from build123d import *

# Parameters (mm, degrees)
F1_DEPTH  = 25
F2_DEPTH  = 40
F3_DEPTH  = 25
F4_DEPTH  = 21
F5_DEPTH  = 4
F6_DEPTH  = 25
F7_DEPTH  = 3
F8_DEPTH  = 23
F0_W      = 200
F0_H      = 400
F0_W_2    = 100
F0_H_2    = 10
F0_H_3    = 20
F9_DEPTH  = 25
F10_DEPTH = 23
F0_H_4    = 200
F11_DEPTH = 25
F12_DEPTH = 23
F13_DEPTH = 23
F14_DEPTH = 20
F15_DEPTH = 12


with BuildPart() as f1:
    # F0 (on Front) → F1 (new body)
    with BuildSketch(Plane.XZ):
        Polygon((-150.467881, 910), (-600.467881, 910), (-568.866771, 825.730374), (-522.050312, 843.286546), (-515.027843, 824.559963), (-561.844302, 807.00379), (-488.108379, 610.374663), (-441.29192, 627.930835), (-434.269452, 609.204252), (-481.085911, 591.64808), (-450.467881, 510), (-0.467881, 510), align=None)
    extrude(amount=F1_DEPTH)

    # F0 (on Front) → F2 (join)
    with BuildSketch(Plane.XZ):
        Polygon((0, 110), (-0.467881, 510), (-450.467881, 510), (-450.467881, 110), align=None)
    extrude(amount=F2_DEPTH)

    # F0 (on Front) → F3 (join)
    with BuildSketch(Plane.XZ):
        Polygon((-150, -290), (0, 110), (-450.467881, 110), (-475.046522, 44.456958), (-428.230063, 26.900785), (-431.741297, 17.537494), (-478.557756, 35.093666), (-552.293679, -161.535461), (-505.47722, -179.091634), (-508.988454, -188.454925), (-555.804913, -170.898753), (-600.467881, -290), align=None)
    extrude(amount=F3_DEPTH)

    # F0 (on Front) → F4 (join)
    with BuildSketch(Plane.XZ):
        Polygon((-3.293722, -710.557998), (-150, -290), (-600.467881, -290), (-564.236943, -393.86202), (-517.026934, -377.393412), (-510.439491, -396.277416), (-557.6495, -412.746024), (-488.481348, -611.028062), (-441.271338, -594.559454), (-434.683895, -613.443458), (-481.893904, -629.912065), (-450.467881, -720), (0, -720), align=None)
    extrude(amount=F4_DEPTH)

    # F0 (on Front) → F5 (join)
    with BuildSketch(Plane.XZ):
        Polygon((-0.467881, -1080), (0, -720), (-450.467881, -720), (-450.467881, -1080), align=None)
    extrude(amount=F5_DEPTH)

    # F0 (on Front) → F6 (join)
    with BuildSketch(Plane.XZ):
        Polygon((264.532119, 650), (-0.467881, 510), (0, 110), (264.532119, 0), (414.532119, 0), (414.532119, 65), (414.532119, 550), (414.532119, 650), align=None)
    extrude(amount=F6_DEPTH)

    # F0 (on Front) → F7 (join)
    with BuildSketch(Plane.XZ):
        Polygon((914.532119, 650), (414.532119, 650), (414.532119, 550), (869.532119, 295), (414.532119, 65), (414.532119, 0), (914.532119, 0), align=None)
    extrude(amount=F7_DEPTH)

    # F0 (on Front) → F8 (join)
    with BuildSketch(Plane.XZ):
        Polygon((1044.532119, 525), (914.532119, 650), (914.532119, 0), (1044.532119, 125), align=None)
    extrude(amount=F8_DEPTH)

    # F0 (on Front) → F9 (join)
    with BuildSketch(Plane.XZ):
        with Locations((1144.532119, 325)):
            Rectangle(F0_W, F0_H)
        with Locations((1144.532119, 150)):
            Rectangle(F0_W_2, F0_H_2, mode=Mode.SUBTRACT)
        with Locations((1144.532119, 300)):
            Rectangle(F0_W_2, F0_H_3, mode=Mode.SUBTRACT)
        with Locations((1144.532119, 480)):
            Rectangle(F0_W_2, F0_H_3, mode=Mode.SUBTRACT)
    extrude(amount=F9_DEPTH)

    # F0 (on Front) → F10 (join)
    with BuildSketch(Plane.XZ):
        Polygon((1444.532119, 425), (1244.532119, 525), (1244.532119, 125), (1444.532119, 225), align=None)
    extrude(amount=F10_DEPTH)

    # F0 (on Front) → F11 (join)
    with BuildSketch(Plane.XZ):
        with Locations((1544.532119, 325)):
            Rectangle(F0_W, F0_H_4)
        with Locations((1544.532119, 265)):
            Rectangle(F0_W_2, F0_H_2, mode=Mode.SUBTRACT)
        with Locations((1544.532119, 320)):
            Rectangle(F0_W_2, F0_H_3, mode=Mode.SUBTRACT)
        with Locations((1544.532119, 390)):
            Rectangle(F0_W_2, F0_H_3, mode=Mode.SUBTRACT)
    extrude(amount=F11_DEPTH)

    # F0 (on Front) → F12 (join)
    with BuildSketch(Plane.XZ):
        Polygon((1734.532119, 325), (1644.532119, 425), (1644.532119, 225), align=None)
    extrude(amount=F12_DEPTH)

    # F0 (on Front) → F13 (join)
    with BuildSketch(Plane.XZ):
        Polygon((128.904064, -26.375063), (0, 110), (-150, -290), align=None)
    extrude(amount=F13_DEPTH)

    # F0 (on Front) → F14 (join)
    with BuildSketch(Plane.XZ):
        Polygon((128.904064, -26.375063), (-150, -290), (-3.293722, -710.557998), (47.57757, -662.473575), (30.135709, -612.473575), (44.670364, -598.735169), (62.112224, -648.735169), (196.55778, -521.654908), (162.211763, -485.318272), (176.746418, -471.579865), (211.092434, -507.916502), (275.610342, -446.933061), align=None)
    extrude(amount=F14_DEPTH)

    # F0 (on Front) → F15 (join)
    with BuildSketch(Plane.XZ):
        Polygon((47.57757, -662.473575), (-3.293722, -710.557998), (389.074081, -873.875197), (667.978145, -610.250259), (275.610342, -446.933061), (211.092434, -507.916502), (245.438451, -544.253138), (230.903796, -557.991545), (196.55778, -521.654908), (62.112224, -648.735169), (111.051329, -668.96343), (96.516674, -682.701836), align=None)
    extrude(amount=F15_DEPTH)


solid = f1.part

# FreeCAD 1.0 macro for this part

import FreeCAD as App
import Part
import Sketcher
from FreeCAD import Vector
Q = App.Units.Quantity

doc = App.newDocument("Part")
body = doc.addObject("PartDesign::Body", "Body")

# Sketch on XZ plane
sketch1 = doc.addObject("Sketcher::SketchObject", "Sketch")
body.addObject(sketch1)
sketch1.AttachmentSupport = (doc.XZ_Plane, [""])
sketch1.MapMode = "FlatFace"
sketch1.addGeometry([
    Part.LineSegment(Vector(-150.467881, 910, 0), Vector(-600.467881, 910, 0)),  # 0
    Part.LineSegment(Vector(-600.467881, 910, 0), Vector(-568.866771, 825.730374, 0)),  # 1
    Part.LineSegment(Vector(-568.866771, 825.730374, 0), Vector(-522.050312, 843.286546, 0)),  # 2
    Part.LineSegment(Vector(-522.050312, 843.286546, 0), Vector(-515.027843, 824.559963, 0)),  # 3
    Part.LineSegment(Vector(-515.027843, 824.559963, 0), Vector(-561.844302, 807.00379, 0)),  # 4
    Part.LineSegment(Vector(-561.844302, 807.00379, 0), Vector(-488.108379, 610.374663, 0)),  # 5
    Part.LineSegment(Vector(-488.108379, 610.374663, 0), Vector(-441.29192, 627.930835, 0)),  # 6
    Part.LineSegment(Vector(-441.29192, 627.930835, 0), Vector(-434.269452, 609.204252, 0)),  # 7
    Part.LineSegment(Vector(-434.269452, 609.204252, 0), Vector(-481.085911, 591.64808, 0)),  # 8
    Part.LineSegment(Vector(-481.085911, 591.64808, 0), Vector(-450.467881, 510, 0)),  # 9
    Part.LineSegment(Vector(-450.467881, 510, 0), Vector(-0.467881, 510, 0)),  # 10
    Part.LineSegment(Vector(-0.467881, 510, 0), Vector(-150.467881, 910, 0)),  # 11
], False)
sketch1.addConstraint([
    Sketcher.Constraint("Coincident", 0, 2, 1, 1),
    Sketcher.Constraint("Coincident", 1, 2, 2, 1),
    Sketcher.Constraint("Coincident", 2, 2, 3, 1),
    Sketcher.Constraint("Coincident", 3, 2, 4, 1),
    Sketcher.Constraint("Coincident", 4, 2, 5, 1),
    Sketcher.Constraint("Coincident", 5, 2, 6, 1),
    Sketcher.Constraint("Coincident", 6, 2, 7, 1),
    Sketcher.Constraint("Coincident", 7, 2, 8, 1),
    Sketcher.Constraint("Coincident", 8, 2, 9, 1),
    Sketcher.Constraint("Coincident", 9, 2, 10, 1),
    Sketcher.Constraint("Coincident", 10, 2, 11, 1),
    Sketcher.Constraint("Coincident", 11, 2, 0, 1),
    Sketcher.Constraint("Horizontal", 0),
    Sketcher.Constraint("Horizontal", 10),
    Sketcher.Constraint("Perpendicular", 1, 2),
    Sketcher.Constraint("Perpendicular", 2, 3),
    Sketcher.Constraint("Perpendicular", 3, 4),
    Sketcher.Constraint("Perpendicular", 4, 5),
    Sketcher.Constraint("Perpendicular", 5, 6),
    Sketcher.Constraint("Perpendicular", 6, 7),
    Sketcher.Constraint("Perpendicular", 7, 8),
    Sketcher.Constraint("Perpendicular", 8, 9),
    Sketcher.Constraint("Parallel", 9, 11),
    Sketcher.Constraint("Equal", 0, 10),
    Sketcher.Constraint("Equal", 2, 4),
    Sketcher.Constraint("Equal", 4, 6),
    Sketcher.Constraint("Equal", 3, 7),
    Sketcher.Constraint("DistanceX", 0, 2, 0, 1, Q("450 mm")),
    Sketcher.Constraint("Distance", 1, Q("90 mm")),
    Sketcher.Constraint("Distance", 2, Q("50 mm")),
    Sketcher.Constraint("Distance", 3, Q("20 mm")),
    Sketcher.Constraint("Distance", 5, Q("210 mm")),
    Sketcher.Constraint("DistanceY", -1, 1, 0, 2, Q("910 mm")),
    Sketcher.Constraint("DistanceY", -1, 1, 9, 2, Q("510 mm")),
    Sketcher.Constraint("DistanceX", 4, 2, -1, 1, Q("561.844302 mm")),
    Sketcher.Constraint("DistanceY", 5, 2, 3, 2, Q("214.1853 mm")),
])
pad1 = doc.addObject("PartDesign::Pad", "Pad")
body.addObject(pad1)
pad1.Profile = sketch1
pad1.Length = 25

# Sketch on XZ plane
sketch2 = doc.addObject("Sketcher::SketchObject", "Sketch001")
body.addObject(sketch2)
sketch2.AttachmentSupport = (doc.XZ_Plane, [""])
sketch2.MapMode = "FlatFace"
sketch2.addGeometry([
    Part.LineSegment(Vector(0, 110, 0), Vector(-0.467881, 510, 0)),
    Part.LineSegment(Vector(-0.467881, 510, 0), Vector(-450.467881, 510, 0)),
    Part.LineSegment(Vector(-450.467881, 510, 0), Vector(-450.467881, 110, 0)),
    Part.LineSegment(Vector(-450.467881, 110, 0), Vector(0, 110, 0)),
], False)
sketch2.addConstraint([
    Sketcher.Constraint("Coincident", 0, 2, 1, 1),
    Sketcher.Constraint("Coincident", 1, 2, 2, 1),
    Sketcher.Constraint("Coincident", 2, 2, 3, 1),
    Sketcher.Constraint("Coincident", 3, 2, 0, 1),
    Sketcher.Constraint("Horizontal", 1),
    Sketcher.Constraint("Vertical", 2),
    Sketcher.Constraint("Horizontal", 3),
    Sketcher.Constraint("PointOnObject", 3, 2, -2),
    Sketcher.Constraint("DistanceX", 1, 2, 1, 1, Q("450 mm")),
    Sketcher.Constraint("DistanceY", 2, 2, 2, 1, Q("400 mm")),
    Sketcher.Constraint("DistanceY", -1, 1, 0, 2, Q("510 mm")),
    Sketcher.Constraint("DistanceX", 3, 1, 3, 2, Q("450.467881 mm")),
])
pad2 = doc.addObject("PartDesign::Pad", "Pad001")
body.addObject(pad2)
pad2.Profile = sketch2
pad2.Length = 40

# Sketch on XZ plane
sketch3 = doc.addObject("Sketcher::SketchObject", "Sketch002")
body.addObject(sketch3)
sketch3.AttachmentSupport = (doc.XZ_Plane, [""])
sketch3.MapMode = "FlatFace"
sketch3.addGeometry([
    Part.LineSegment(Vector(-150, -290, 0), Vector(0, 110, 0)),  # 0
    Part.LineSegment(Vector(0, 110, 0), Vector(-450.467881, 110, 0)),  # 1
    Part.LineSegment(Vector(-450.467881, 110, 0), Vector(-475.046522, 44.456958, 0)),  # 2
    Part.LineSegment(Vector(-475.046522, 44.456958, 0), Vector(-428.230063, 26.900785, 0)),  # 3
    Part.LineSegment(Vector(-428.230063, 26.900785, 0), Vector(-431.741297, 17.537494, 0)),  # 4
    Part.LineSegment(Vector(-431.741297, 17.537494, 0), Vector(-478.557756, 35.093666, 0)),  # 5
    Part.LineSegment(Vector(-478.557756, 35.093666, 0), Vector(-552.293679, -161.535461, 0)),  # 6
    Part.LineSegment(Vector(-552.293679, -161.535461, 0), Vector(-505.47722, -179.091634, 0)),  # 7
    Part.LineSegment(Vector(-505.47722, -179.091634, 0), Vector(-508.988454, -188.454925, 0)),  # 8
    Part.LineSegment(Vector(-508.988454, -188.454925, 0), Vector(-555.804913, -170.898753, 0)),  # 9
    Part.LineSegment(Vector(-555.804913, -170.898753, 0), Vector(-600.467881, -290, 0)),  # 10
    Part.LineSegment(Vector(-600.467881, -290, 0), Vector(-150, -290, 0)),  # 11
], False)
sketch3.addConstraint([
    Sketcher.Constraint("Coincident", 0, 2, 1, 1),
    Sketcher.Constraint("Coincident", 1, 2, 2, 1),
    Sketcher.Constraint("Coincident", 2, 2, 3, 1),
    Sketcher.Constraint("Coincident", 3, 2, 4, 1),
    Sketcher.Constraint("Coincident", 4, 2, 5, 1),
    Sketcher.Constraint("Coincident", 5, 2, 6, 1),
    Sketcher.Constraint("Coincident", 6, 2, 7, 1),
    Sketcher.Constraint("Coincident", 7, 2, 8, 1),
    Sketcher.Constraint("Coincident", 8, 2, 9, 1),
    Sketcher.Constraint("Coincident", 9, 2, 10, 1),
    Sketcher.Constraint("Coincident", 10, 2, 11, 1),
    Sketcher.Constraint("Coincident", 11, 2, 0, 1),
    Sketcher.Constraint("Horizontal", 1),
    Sketcher.Constraint("Horizontal", 11),
    Sketcher.Constraint("PointOnObject", 0, 2, -2),
    Sketcher.Constraint("Parallel", 0, 2),
    Sketcher.Constraint("Perpendicular", 2, 3),
    Sketcher.Constraint("Perpendicular", 3, 4),
    Sketcher.Constraint("Perpendicular", 4, 5),
    Sketcher.Constraint("Perpendicular", 5, 6),
    Sketcher.Constraint("Perpendicular", 6, 7),
    Sketcher.Constraint("Perpendicular", 7, 8),
    Sketcher.Constraint("Perpendicular", 8, 9),
    Sketcher.Constraint("Perpendicular", 9, 10),
    Sketcher.Constraint("Equal", 1, 11),
    Sketcher.Constraint("Equal", 3, 5),
    Sketcher.Constraint("Equal", 5, 7),
    Sketcher.Constraint("Equal", 4, 8),
    Sketcher.Constraint("Distance", 2, Q("70 mm")),
    Sketcher.Constraint("Distance", 3, Q("50 mm")),
    Sketcher.Constraint("Distance", 4, Q("9.999999 mm")),
    Sketcher.Constraint("Distance", 6, Q("210 mm")),
    Sketcher.Constraint("DistanceY", -1, 1, 0, 2, Q("110 mm")),
    Sketcher.Constraint("DistanceY", 10, 2, -1, 1, Q("290 mm")),
    Sketcher.Constraint("DistanceX", 11, 2, -1, 1, Q("150 mm")),
    Sketcher.Constraint("DistanceX", 1, 2, 1, 1, Q("450.467881 mm")),
])
pad3 = doc.addObject("PartDesign::Pad", "Pad002")
body.addObject(pad3)
pad3.Profile = sketch3
pad3.Length = 25

# Sketch on XZ plane
sketch4 = doc.addObject("Sketcher::SketchObject", "Sketch003")
body.addObject(sketch4)
sketch4.AttachmentSupport = (doc.XZ_Plane, [""])
sketch4.MapMode = "FlatFace"
sketch4.addGeometry([
    Part.LineSegment(Vector(-3.293722, -710.557998, 0), Vector(-150, -290, 0)),  # 0
    Part.LineSegment(Vector(-150, -290, 0), Vector(-600.467881, -290, 0)),  # 1
    Part.LineSegment(Vector(-600.467881, -290, 0), Vector(-564.236943, -393.86202, 0)),  # 2
    Part.LineSegment(Vector(-564.236943, -393.86202, 0), Vector(-517.026934, -377.393412, 0)),  # 3
    Part.LineSegment(Vector(-517.026934, -377.393412, 0), Vector(-510.439491, -396.277416, 0)),  # 4
    Part.LineSegment(Vector(-510.439491, -396.277416, 0), Vector(-557.6495, -412.746024, 0)),  # 5
    Part.LineSegment(Vector(-557.6495, -412.746024, 0), Vector(-488.481348, -611.028062, 0)),  # 6
    Part.LineSegment(Vector(-488.481348, -611.028062, 0), Vector(-441.271338, -594.559454, 0)),  # 7
    Part.LineSegment(Vector(-441.271338, -594.559454, 0), Vector(-434.683895, -613.443458, 0)),  # 8
    Part.LineSegment(Vector(-434.683895, -613.443458, 0), Vector(-481.893904, -629.912065, 0)),  # 9
    Part.LineSegment(Vector(-481.893904, -629.912065, 0), Vector(-450.467881, -720, 0)),  # 10
    Part.LineSegment(Vector(-450.467881, -720, 0), Vector(0, -720, 0)),  # 11
    Part.LineSegment(Vector(0, -720, 0), Vector(-3.293722, -710.557998, 0)),  # 12
], False)
sketch4.addConstraint([
    Sketcher.Constraint("Coincident", 0, 2, 1, 1),
    Sketcher.Constraint("Coincident", 1, 2, 2, 1),
    Sketcher.Constraint("Coincident", 2, 2, 3, 1),
    Sketcher.Constraint("Coincident", 3, 2, 4, 1),
    Sketcher.Constraint("Coincident", 4, 2, 5, 1),
    Sketcher.Constraint("Coincident", 5, 2, 6, 1),
    Sketcher.Constraint("Coincident", 6, 2, 7, 1),
    Sketcher.Constraint("Coincident", 7, 2, 8, 1),
    Sketcher.Constraint("Coincident", 8, 2, 9, 1),
    Sketcher.Constraint("Coincident", 9, 2, 10, 1),
    Sketcher.Constraint("Coincident", 10, 2, 11, 1),
    Sketcher.Constraint("Coincident", 11, 2, 12, 1),
    Sketcher.Constraint("Coincident", 12, 2, 0, 1),
    Sketcher.Constraint("Horizontal", 1),
    Sketcher.Constraint("Horizontal", 11),
    Sketcher.Constraint("PointOnObject", 11, 2, -2),
    Sketcher.Constraint("Parallel", 0, 2),
    Sketcher.Constraint("Perpendicular", 2, 3),
    Sketcher.Constraint("Perpendicular", 3, 4),
    Sketcher.Constraint("Perpendicular", 4, 5),
    Sketcher.Constraint("Perpendicular", 5, 6),
    Sketcher.Constraint("Perpendicular", 6, 7),
    Sketcher.Constraint("Perpendicular", 7, 8),
    Sketcher.Constraint("Perpendicular", 8, 9),
    Sketcher.Constraint("Perpendicular", 9, 10),
    Sketcher.Constraint("Parallel", 10, 12),
    Sketcher.Constraint("Equal", 1, 11),
    Sketcher.Constraint("Equal", 3, 5),
    Sketcher.Constraint("Equal", 5, 7),
    Sketcher.Constraint("Equal", 4, 8),
    Sketcher.Constraint("Distance", 2, Q("110 mm")),
    Sketcher.Constraint("Distance", 3, Q("50 mm")),
    Sketcher.Constraint("Distance", 4, Q("20 mm")),
    Sketcher.Constraint("Distance", 6, Q("210 mm")),
    Sketcher.Constraint("Distance", 12, Q("10 mm")),
    Sketcher.Constraint("DistanceX", 0, 2, -1, 1, Q("150 mm")),
    Sketcher.Constraint("DistanceY", 0, 2, -1, 1, Q("290 mm")),
    Sketcher.Constraint("DistanceY", 10, 2, -1, 1, Q("720 mm")),
    Sketcher.Constraint("DistanceX", 1, 2, 1, 1, Q("450.467881 mm")),
])
pad4 = doc.addObject("PartDesign::Pad", "Pad003")
body.addObject(pad4)
pad4.Profile = sketch4
pad4.Length = 21

# Sketch on XZ plane
sketch5 = doc.addObject("Sketcher::SketchObject", "Sketch004")
body.addObject(sketch5)
sketch5.AttachmentSupport = (doc.XZ_Plane, [""])
sketch5.MapMode = "FlatFace"
sketch5.addGeometry([
    Part.LineSegment(Vector(-0.467881, -1080, 0), Vector(0, -720, 0)),
    Part.LineSegment(Vector(0, -720, 0), Vector(-450.467881, -720, 0)),
    Part.LineSegment(Vector(-450.467881, -720, 0), Vector(-450.467881, -1080, 0)),
    Part.LineSegment(Vector(-450.467881, -1080, 0), Vector(-0.467881, -1080, 0)),
], False)
sketch5.addConstraint([
    Sketcher.Constraint("Coincident", 0, 2, 1, 1),
    Sketcher.Constraint("Coincident", 1, 2, 2, 1),
    Sketcher.Constraint("Coincident", 2, 2, 3, 1),
    Sketcher.Constraint("Coincident", 3, 2, 0, 1),
    Sketcher.Constraint("Horizontal", 1),
    Sketcher.Constraint("Vertical", 2),
    Sketcher.Constraint("Horizontal", 3),
    Sketcher.Constraint("PointOnObject", 0, 2, -2),
    Sketcher.Constraint("DistanceX", 3, 1, 3, 2, Q("450 mm")),
    Sketcher.Constraint("DistanceY", 2, 2, 2, 1, Q("360 mm")),
    Sketcher.Constraint("DistanceY", 0, 2, -1, 1, Q("720 mm")),
    Sketcher.Constraint("DistanceX", 1, 2, 1, 1, Q("450.467881 mm")),
])
pad5 = doc.addObject("PartDesign::Pad", "Pad004")
body.addObject(pad5)
pad5.Profile = sketch5
pad5.Length = 4

# Sketch on XZ plane
sketch6 = doc.addObject("Sketcher::SketchObject", "Sketch005")
body.addObject(sketch6)
sketch6.AttachmentSupport = (doc.XZ_Plane, [""])
sketch6.MapMode = "FlatFace"
sketch6.addGeometry([
    Part.LineSegment(Vector(264.532119, 650, 0), Vector(-0.467881, 510, 0)),  # 0
    Part.LineSegment(Vector(-0.467881, 510, 0), Vector(0, 110, 0)),  # 1
    Part.LineSegment(Vector(0, 110, 0), Vector(264.532119, 0, 0)),  # 2
    Part.LineSegment(Vector(264.532119, 0, 0), Vector(414.532119, 0, 0)),  # 3
    Part.LineSegment(Vector(414.532119, 0, 0), Vector(414.532119, 650, 0)),  # 4
    Part.LineSegment(Vector(414.532119, 650, 0), Vector(264.532119, 650, 0)),  # 5
], False)
sketch6.addConstraint([
    Sketcher.Constraint("Coincident", 0, 2, 1, 1),
    Sketcher.Constraint("Coincident", 1, 2, 2, 1),
    Sketcher.Constraint("Coincident", 2, 2, 3, 1),
    Sketcher.Constraint("Coincident", 3, 2, 4, 1),
    Sketcher.Constraint("Coincident", 4, 2, 5, 1),
    Sketcher.Constraint("Coincident", 5, 2, 0, 1),
    Sketcher.Constraint("Horizontal", 3),
    Sketcher.Constraint("Vertical", 4),
    Sketcher.Constraint("Horizontal", 5),
    Sketcher.Constraint("PointOnObject", 1, 2, -2),
    Sketcher.Constraint("PointOnObject", 2, 2, -1),
    Sketcher.Constraint("Vertical", 2, 2, 5, 2),
    Sketcher.Constraint("DistanceX", 3, 1, 3, 2, Q("150 mm")),
    Sketcher.Constraint("DistanceY", 4, 1, 4, 2, Q("650 mm")),
    Sketcher.Constraint("DistanceY", -1, 1, 0, 2, Q("510 mm")),
    Sketcher.Constraint("DistanceY", -1, 1, 1, 2, Q("110 mm")),
    Sketcher.Constraint("DistanceX", 0, 2, 2, 2, Q("265 mm")),
    Sketcher.Constraint("Distance", 2, Q("286.49126 mm")),
])
pad6 = doc.addObject("PartDesign::Pad", "Pad005")
body.addObject(pad6)
pad6.Profile = sketch6
pad6.Length = 25

# Sketch on XZ plane
sketch7 = doc.addObject("Sketcher::SketchObject", "Sketch006")
body.addObject(sketch7)
sketch7.AttachmentSupport = (doc.XZ_Plane, [""])
sketch7.MapMode = "FlatFace"
sketch7.addGeometry([
    Part.LineSegment(Vector(914.532119, 650, 0), Vector(414.532119, 650, 0)),  # 0
    Part.LineSegment(Vector(414.532119, 650, 0), Vector(414.532119, 550, 0)),  # 1
    Part.LineSegment(Vector(414.532119, 550, 0), Vector(869.532119, 295, 0)),  # 2
    Part.LineSegment(Vector(869.532119, 295, 0), Vector(414.532119, 65, 0)),  # 3
    Part.LineSegment(Vector(414.532119, 65, 0), Vector(414.532119, 0, 0)),  # 4
    Part.LineSegment(Vector(414.532119, 0, 0), Vector(914.532119, 0, 0)),  # 5
    Part.LineSegment(Vector(914.532119, 0, 0), Vector(914.532119, 650, 0)),  # 6
], False)
sketch7.addConstraint([
    Sketcher.Constraint("Coincident", 0, 2, 1, 1),
    Sketcher.Constraint("Coincident", 1, 2, 2, 1),
    Sketcher.Constraint("Coincident", 2, 2, 3, 1),
    Sketcher.Constraint("Coincident", 3, 2, 4, 1),
    Sketcher.Constraint("Coincident", 4, 2, 5, 1),
    Sketcher.Constraint("Coincident", 5, 2, 6, 1),
    Sketcher.Constraint("Coincident", 6, 2, 0, 1),
    Sketcher.Constraint("Horizontal", 0),
    Sketcher.Constraint("Vertical", 1),
    Sketcher.Constraint("Vertical", 4),
    Sketcher.Constraint("Horizontal", 5),
    Sketcher.Constraint("Vertical", 6),
    Sketcher.Constraint("PointOnObject", 4, 2, -1),
    Sketcher.Constraint("Vertical", 1, 2, 3, 2),
    Sketcher.Constraint("DistanceX", 0, 2, 0, 1, Q("500 mm")),
    Sketcher.Constraint("DistanceY", 1, 2, 1, 1, Q("100 mm")),
    Sketcher.Constraint("DistanceY", 4, 2, 4, 1, Q("65 mm")),
    Sketcher.Constraint("DistanceY", 6, 1, 6, 2, Q("650 mm")),
    Sketcher.Constraint("DistanceY", -1, 1, 2, 2, Q("295 mm")),
    Sketcher.Constraint("DistanceX", 1, 2, 2, 2, Q("455 mm")),
    Sketcher.Constraint("DistanceX", -1, 1, 0, 2, Q("414.532119 mm")),
])
pad7 = doc.addObject("PartDesign::Pad", "Pad006")
body.addObject(pad7)
pad7.Profile = sketch7
pad7.Length = 3

# Sketch on XZ plane
sketch8 = doc.addObject("Sketcher::SketchObject", "Sketch007")
body.addObject(sketch8)
sketch8.AttachmentSupport = (doc.XZ_Plane, [""])
sketch8.MapMode = "FlatFace"
sketch8.addGeometry([
    Part.LineSegment(Vector(1044.532119, 525, 0), Vector(914.532119, 650, 0)),
    Part.LineSegment(Vector(914.532119, 650, 0), Vector(914.532119, 0, 0)),
    Part.LineSegment(Vector(914.532119, 0, 0), Vector(1044.532119, 125, 0)),
    Part.LineSegment(Vector(1044.532119, 125, 0), Vector(1044.532119, 525, 0)),
], False)
sketch8.addConstraint([
    Sketcher.Constraint("Coincident", 0, 2, 1, 1),
    Sketcher.Constraint("Coincident", 1, 2, 2, 1),
    Sketcher.Constraint("Coincident", 2, 2, 3, 1),
    Sketcher.Constraint("Coincident", 3, 2, 0, 1),
    Sketcher.Constraint("Vertical", 1),
    Sketcher.Constraint("Vertical", 3),
    Sketcher.Constraint("PointOnObject", 1, 2, -1),
    Sketcher.Constraint("Equal", 0, 2),
    Sketcher.Constraint("DistanceY", 1, 2, 1, 1, Q("650 mm")),
    Sketcher.Constraint("DistanceY", 3, 1, 3, 2, Q("400 mm")),
    Sketcher.Constraint("DistanceX", 1, 2, 2, 2, Q("130 mm")),
    Sketcher.Constraint("DistanceX", -1, 1, 0, 2, Q("914.532119 mm")),
])
pad8 = doc.addObject("PartDesign::Pad", "Pad007")
body.addObject(pad8)
pad8.Profile = sketch8
pad8.Length = 23

# Sketch on XZ plane
sketch9 = doc.addObject("Sketcher::SketchObject", "Sketch008")
body.addObject(sketch9)
sketch9.AttachmentSupport = (doc.XZ_Plane, [""])
sketch9.MapMode = "FlatFace"
sketch9.addGeometry([
    Part.LineSegment(Vector(1044.532119, 525, 0), Vector(1044.532119, 125, 0)),  # 0
    Part.LineSegment(Vector(1044.532119, 125, 0), Vector(1244.532119, 125, 0)),  # 1
    Part.LineSegment(Vector(1244.532119, 125, 0), Vector(1244.532119, 525, 0)),  # 2
    Part.LineSegment(Vector(1244.532119, 525, 0), Vector(1044.532119, 525, 0)),  # 3
    Part.LineSegment(Vector(1194.532119, 145, 0), Vector(1094.532119, 145, 0)),  # 4
    Part.LineSegment(Vector(1094.532119, 145, 0), Vector(1094.532119, 155, 0)),  # 5
    Part.LineSegment(Vector(1094.532119, 155, 0), Vector(1194.532119, 155, 0)),  # 6
    Part.LineSegment(Vector(1194.532119, 155, 0), Vector(1194.532119, 145, 0)),  # 7
    Part.LineSegment(Vector(1194.532119, 290, 0), Vector(1094.532119, 290, 0)),  # 8
    Part.LineSegment(Vector(1094.532119, 290, 0), Vector(1094.532119, 310, 0)),  # 9
    Part.LineSegment(Vector(1094.532119, 310, 0), Vector(1194.532119, 310, 0)),  # 10
    Part.LineSegment(Vector(1194.532119, 310, 0), Vector(1194.532119, 290, 0)),  # 11
    Part.LineSegment(Vector(1194.532119, 470, 0), Vector(1094.532119, 470, 0)),  # 12
    Part.LineSegment(Vector(1094.532119, 470, 0), Vector(1094.532119, 490, 0)),  # 13
    Part.LineSegment(Vector(1094.532119, 490, 0), Vector(1194.532119, 490, 0)),  # 14
    Part.LineSegment(Vector(1194.532119, 490, 0), Vector(1194.532119, 470, 0)),  # 15
], False)
sketch9.addConstraint([
    Sketcher.Constraint("Coincident", 0, 2, 1, 1),
    Sketcher.Constraint("Coincident", 1, 2, 2, 1),
    Sketcher.Constraint("Coincident", 2, 2, 3, 1),
    Sketcher.Constraint("Coincident", 3, 2, 0, 1),
    Sketcher.Constraint("Coincident", 4, 2, 5, 1),
    Sketcher.Constraint("Coincident", 5, 2, 6, 1),
    Sketcher.Constraint("Coincident", 6, 2, 7, 1),
    Sketcher.Constraint("Coincident", 7, 2, 4, 1),
    Sketcher.Constraint("Coincident", 8, 2, 9, 1),
    Sketcher.Constraint("Coincident", 9, 2, 10, 1),
    Sketcher.Constraint("Coincident", 10, 2, 11, 1),
    Sketcher.Constraint("Coincident", 11, 2, 8, 1),
    Sketcher.Constraint("Coincident", 12, 2, 13, 1),
    Sketcher.Constraint("Coincident", 13, 2, 14, 1),
    Sketcher.Constraint("Coincident", 14, 2, 15, 1),
    Sketcher.Constraint("Coincident", 15, 2, 12, 1),
    Sketcher.Constraint("Vertical", 0),
    Sketcher.Constraint("Horizontal", 1),
    Sketcher.Constraint("Vertical", 2),
    Sketcher.Constraint("Horizontal", 3),
    Sketcher.Constraint("Horizontal", 4),
    Sketcher.Constraint("Vertical", 5),
    Sketcher.Constraint("Horizontal", 6),
    Sketcher.Constraint("Vertical", 7),
    Sketcher.Constraint("Horizontal", 8),
    Sketcher.Constraint("Vertical", 9),
    Sketcher.Constraint("Horizontal", 10),
    Sketcher.Constraint("Vertical", 11),
    Sketcher.Constraint("Horizontal", 12),
    Sketcher.Constraint("Vertical", 13),
    Sketcher.Constraint("Horizontal", 14),
    Sketcher.Constraint("Vertical", 15),
    Sketcher.Constraint("Vertical", 5, 2, 8, 2),
    Sketcher.Constraint("Vertical", 7, 2, 10, 2),
    Sketcher.Constraint("Vertical", 9, 2, 12, 2),
    Sketcher.Constraint("Vertical", 11, 2, 14, 2),
    Sketcher.Constraint("Equal", 11, 13),
    Sketcher.Constraint("DistanceX", 1, 1, 1, 2, Q("200 mm")),
    Sketcher.Constraint("DistanceX", 4, 2, 4, 1, Q("100 mm")),
    Sketcher.Constraint("DistanceY", 0, 2, 0, 1, Q("400 mm")),
    Sketcher.Constraint("DistanceY", 5, 1, 5, 2, Q("10 mm")),
    Sketcher.Constraint("DistanceY", 9, 1, 9, 2, Q("20 mm")),
    Sketcher.Constraint("DistanceY", -1, 1, 0, 2, Q("125 mm")),
    Sketcher.Constraint("DistanceY", -1, 1, 4, 2, Q("145 mm")),
    Sketcher.Constraint("DistanceY", -1, 1, 8, 2, Q("290 mm")),
    Sketcher.Constraint("DistanceY", -1, 1, 12, 2, Q("470 mm")),
    Sketcher.Constraint("DistanceX", 0, 2, 4, 2, Q("50 mm")),
    Sketcher.Constraint("DistanceX", -1, 1, 0, 2, Q("1044.532119 mm")),
])
pad9 = doc.addObject("PartDesign::Pad", "Pad008")
body.addObject(pad9)
pad9.Profile = sketch9
pad9.Length = 25

# Sketch on XZ plane
sketch10 = doc.addObject("Sketcher::SketchObject", "Sketch009")
body.addObject(sketch10)
sketch10.AttachmentSupport = (doc.XZ_Plane, [""])
sketch10.MapMode = "FlatFace"
sketch10.addGeometry([
    Part.LineSegment(Vector(1444.532119, 425, 0), Vector(1244.532119, 525, 0)),
    Part.LineSegment(Vector(1244.532119, 525, 0), Vector(1244.532119, 125, 0)),
    Part.LineSegment(Vector(1244.532119, 125, 0), Vector(1444.532119, 225, 0)),
    Part.LineSegment(Vector(1444.532119, 225, 0), Vector(1444.532119, 425, 0)),
], False)
sketch10.addConstraint([
    Sketcher.Constraint("Coincident", 0, 2, 1, 1),
    Sketcher.Constraint("Coincident", 1, 2, 2, 1),
    Sketcher.Constraint("Coincident", 2, 2, 3, 1),
    Sketcher.Constraint("Coincident", 3, 2, 0, 1),
    Sketcher.Constraint("Vertical", 1),
    Sketcher.Constraint("Vertical", 3),
    Sketcher.Constraint("Equal", 0, 2),
    Sketcher.Constraint("DistanceY", 1, 2, 1, 1, Q("400 mm")),
    Sketcher.Constraint("DistanceY", 3, 1, 3, 2, Q("200 mm")),
    Sketcher.Constraint("DistanceY", -1, 1, 0, 2, Q("525 mm")),
    Sketcher.Constraint("DistanceX", 1, 2, 2, 2, Q("200 mm")),
    Sketcher.Constraint("DistanceX", -1, 1, 0, 2, Q("1244.532119 mm")),
])
pad10 = doc.addObject("PartDesign::Pad", "Pad009")
body.addObject(pad10)
pad10.Profile = sketch10
pad10.Length = 23

# Sketch on XZ plane
sketch11 = doc.addObject("Sketcher::SketchObject", "Sketch010")
body.addObject(sketch11)
sketch11.AttachmentSupport = (doc.XZ_Plane, [""])
sketch11.MapMode = "FlatFace"
sketch11.addGeometry([
    Part.LineSegment(Vector(1444.532119, 425, 0), Vector(1444.532119, 225, 0)),  # 0
    Part.LineSegment(Vector(1444.532119, 225, 0), Vector(1644.532119, 225, 0)),  # 1
    Part.LineSegment(Vector(1644.532119, 225, 0), Vector(1644.532119, 425, 0)),  # 2
    Part.LineSegment(Vector(1644.532119, 425, 0), Vector(1444.532119, 425, 0)),  # 3
    Part.LineSegment(Vector(1594.532119, 260, 0), Vector(1494.532119, 260, 0)),  # 4
    Part.LineSegment(Vector(1494.532119, 260, 0), Vector(1494.532119, 270, 0)),  # 5
    Part.LineSegment(Vector(1494.532119, 270, 0), Vector(1594.532119, 270, 0)),  # 6
    Part.LineSegment(Vector(1594.532119, 270, 0), Vector(1594.532119, 260, 0)),  # 7
    Part.LineSegment(Vector(1594.532119, 310, 0), Vector(1494.532119, 310, 0)),  # 8
    Part.LineSegment(Vector(1494.532119, 310, 0), Vector(1494.532119, 330, 0)),  # 9
    Part.LineSegment(Vector(1494.532119, 330, 0), Vector(1594.532119, 330, 0)),  # 10
    Part.LineSegment(Vector(1594.532119, 330, 0), Vector(1594.532119, 310, 0)),  # 11
    Part.LineSegment(Vector(1594.532119, 380, 0), Vector(1494.532119, 380, 0)),  # 12
    Part.LineSegment(Vector(1494.532119, 380, 0), Vector(1494.532119, 400, 0)),  # 13
    Part.LineSegment(Vector(1494.532119, 400, 0), Vector(1594.532119, 400, 0)),  # 14
    Part.LineSegment(Vector(1594.532119, 400, 0), Vector(1594.532119, 380, 0)),  # 15
], False)
sketch11.addConstraint([
    Sketcher.Constraint("Coincident", 0, 2, 1, 1),
    Sketcher.Constraint("Coincident", 1, 2, 2, 1),
    Sketcher.Constraint("Coincident", 2, 2, 3, 1),
    Sketcher.Constraint("Coincident", 3, 2, 0, 1),
    Sketcher.Constraint("Coincident", 4, 2, 5, 1),
    Sketcher.Constraint("Coincident", 5, 2, 6, 1),
    Sketcher.Constraint("Coincident", 6, 2, 7, 1),
    Sketcher.Constraint("Coincident", 7, 2, 4, 1),
    Sketcher.Constraint("Coincident", 8, 2, 9, 1),
    Sketcher.Constraint("Coincident", 9, 2, 10, 1),
    Sketcher.Constraint("Coincident", 10, 2, 11, 1),
    Sketcher.Constraint("Coincident", 11, 2, 8, 1),
    Sketcher.Constraint("Coincident", 12, 2, 13, 1),
    Sketcher.Constraint("Coincident", 13, 2, 14, 1),
    Sketcher.Constraint("Coincident", 14, 2, 15, 1),
    Sketcher.Constraint("Coincident", 15, 2, 12, 1),
    Sketcher.Constraint("Vertical", 0),
    Sketcher.Constraint("Horizontal", 1),
    Sketcher.Constraint("Vertical", 2),
    Sketcher.Constraint("Horizontal", 3),
    Sketcher.Constraint("Horizontal", 4),
    Sketcher.Constraint("Vertical", 5),
    Sketcher.Constraint("Horizontal", 6),
    Sketcher.Constraint("Vertical", 7),
    Sketcher.Constraint("Horizontal", 8),
    Sketcher.Constraint("Vertical", 9),
    Sketcher.Constraint("Horizontal", 10),
    Sketcher.Constraint("Vertical", 11),
    Sketcher.Constraint("Horizontal", 12),
    Sketcher.Constraint("Vertical", 13),
    Sketcher.Constraint("Horizontal", 14),
    Sketcher.Constraint("Vertical", 15),
    Sketcher.Constraint("Vertical", 5, 2, 8, 2),
    Sketcher.Constraint("Vertical", 7, 2, 10, 2),
    Sketcher.Constraint("Vertical", 9, 2, 12, 2),
    Sketcher.Constraint("Vertical", 11, 2, 14, 2),
    Sketcher.Constraint("Equal", 3, 0),
    Sketcher.Constraint("Equal", 11, 13),
    Sketcher.Constraint("DistanceX", 1, 1, 1, 2, Q("200 mm")),
    Sketcher.Constraint("DistanceX", 4, 2, 4, 1, Q("100 mm")),
    Sketcher.Constraint("DistanceY", 5, 1, 5, 2, Q("10 mm")),
    Sketcher.Constraint("DistanceY", 9, 1, 9, 2, Q("20 mm")),
    Sketcher.Constraint("DistanceY", -1, 1, 0, 2, Q("225 mm")),
    Sketcher.Constraint("DistanceY", -1, 1, 4, 2, Q("260 mm")),
    Sketcher.Constraint("DistanceY", -1, 1, 8, 2, Q("310 mm")),
    Sketcher.Constraint("DistanceY", -1, 1, 12, 2, Q("380 mm")),
    Sketcher.Constraint("DistanceX", 0, 2, 4, 2, Q("50 mm")),
    Sketcher.Constraint("DistanceX", -1, 1, 0, 2, Q("1444.532119 mm")),
])
pad11 = doc.addObject("PartDesign::Pad", "Pad010")
body.addObject(pad11)
pad11.Profile = sketch11
pad11.Length = 25

# Sketch on XZ plane
sketch12 = doc.addObject("Sketcher::SketchObject", "Sketch011")
body.addObject(sketch12)
sketch12.AttachmentSupport = (doc.XZ_Plane, [""])
sketch12.MapMode = "FlatFace"
sketch12.addGeometry([
    Part.LineSegment(Vector(1734.532119, 325, 0), Vector(1644.532119, 425, 0)),
    Part.LineSegment(Vector(1644.532119, 425, 0), Vector(1644.532119, 225, 0)),
    Part.LineSegment(Vector(1644.532119, 225, 0), Vector(1734.532119, 325, 0)),
], False)
sketch12.addConstraint([
    Sketcher.Constraint("Coincident", 0, 2, 1, 1),
    Sketcher.Constraint("Coincident", 1, 2, 2, 1),
    Sketcher.Constraint("Coincident", 2, 2, 0, 1),
    Sketcher.Constraint("Vertical", 1),
    Sketcher.Constraint("Equal", 0, 2),
    Sketcher.Constraint("DistanceY", 1, 2, 1, 1, Q("200 mm")),
    Sketcher.Constraint("DistanceY", -1, 1, 0, 2, Q("425 mm")),
    Sketcher.Constraint("DistanceX", 0, 2, 2, 2, Q("90 mm")),
    Sketcher.Constraint("DistanceX", -1, 1, 0, 2, Q("1644.532119 mm")),
])
pad12 = doc.addObject("PartDesign::Pad", "Pad011")
body.addObject(pad12)
pad12.Profile = sketch12
pad12.Length = 23

# Sketch on XZ plane
sketch13 = doc.addObject("Sketcher::SketchObject", "Sketch012")
body.addObject(sketch13)
sketch13.AttachmentSupport = (doc.XZ_Plane, [""])
sketch13.MapMode = "FlatFace"
sketch13.addGeometry([
    Part.LineSegment(Vector(128.904064, -26.375063, 0), Vector(0, 110, 0)),
    Part.LineSegment(Vector(0, 110, 0), Vector(-150, -290, 0)),
    Part.LineSegment(Vector(-150, -290, 0), Vector(128.904064, -26.375063, 0)),
], False)
sketch13.addConstraint([
    Sketcher.Constraint("Coincident", 0, 2, 1, 1),
    Sketcher.Constraint("Coincident", 1, 2, 2, 1),
    Sketcher.Constraint("Coincident", 2, 2, 0, 1),
    Sketcher.Constraint("PointOnObject", 0, 2, -2),
    Sketcher.Constraint("Perpendicular", 0, 2),
    Sketcher.Constraint("DistanceY", -1, 1, 0, 2, Q("110 mm")),
    Sketcher.Constraint("DistanceX", 1, 2, -1, 1, Q("150 mm")),
    Sketcher.Constraint("DistanceY", 1, 2, -1, 1, Q("290 mm")),
    Sketcher.Constraint("Distance", 2, Q("383.77804 mm")),
])
pad13 = doc.addObject("PartDesign::Pad", "Pad012")
body.addObject(pad13)
pad13.Profile = sketch13
pad13.Length = 23

# Sketch on XZ plane
sketch14 = doc.addObject("Sketcher::SketchObject", "Sketch013")
body.addObject(sketch14)
sketch14.AttachmentSupport = (doc.XZ_Plane, [""])
sketch14.MapMode = "FlatFace"
sketch14.addGeometry([
    Part.LineSegment(Vector(128.904064, -26.375063, 0), Vector(-150, -290, 0)),  # 0
    Part.LineSegment(Vector(-150, -290, 0), Vector(-3.293722, -710.557998, 0)),  # 1
    Part.LineSegment(Vector(-3.293722, -710.557998, 0), Vector(47.57757, -662.473575, 0)),  # 2
    Part.LineSegment(Vector(47.57757, -662.473575, 0), Vector(30.135709, -612.473575, 0)),  # 3
    Part.LineSegment(Vector(30.135709, -612.473575, 0), Vector(44.670364, -598.735169, 0)),  # 4
    Part.LineSegment(Vector(44.670364, -598.735169, 0), Vector(62.112224, -648.735169, 0)),  # 5
    Part.LineSegment(Vector(62.112224, -648.735169, 0), Vector(196.55778, -521.654908, 0)),  # 6
    Part.LineSegment(Vector(196.55778, -521.654908, 0), Vector(162.211763, -485.318272, 0)),  # 7
    Part.LineSegment(Vector(162.211763, -485.318272, 0), Vector(176.746418, -471.579865, 0)),  # 8
    Part.LineSegment(Vector(176.746418, -471.579865, 0), Vector(211.092434, -507.916502, 0)),  # 9
    Part.LineSegment(Vector(211.092434, -507.916502, 0), Vector(275.610342, -446.933061, 0)),  # 10
    Part.LineSegment(Vector(275.610342, -446.933061, 0), Vector(128.904064, -26.375063, 0)),  # 11
], False)
sketch14.addConstraint([
    Sketcher.Constraint("Coincident", 0, 2, 1, 1),
    Sketcher.Constraint("Coincident", 1, 2, 2, 1),
    Sketcher.Constraint("Coincident", 2, 2, 3, 1),
    Sketcher.Constraint("Coincident", 3, 2, 4, 1),
    Sketcher.Constraint("Coincident", 4, 2, 5, 1),
    Sketcher.Constraint("Coincident", 5, 2, 6, 1),
    Sketcher.Constraint("Coincident", 6, 2, 7, 1),
    Sketcher.Constraint("Coincident", 7, 2, 8, 1),
    Sketcher.Constraint("Coincident", 8, 2, 9, 1),
    Sketcher.Constraint("Coincident", 9, 2, 10, 1),
    Sketcher.Constraint("Coincident", 10, 2, 11, 1),
    Sketcher.Constraint("Coincident", 11, 2, 0, 1),
    Sketcher.Constraint("Parallel", 0, 2),
    Sketcher.Constraint("Parallel", 1, 3),
    Sketcher.Constraint("Parallel", 2, 4),
    Sketcher.Constraint("Parallel", 3, 5),
    Sketcher.Constraint("Parallel", 4, 6),
    Sketcher.Constraint("Perpendicular", 6, 7),
    Sketcher.Constraint("Perpendicular", 7, 8),
    Sketcher.Constraint("Perpendicular", 8, 9),
    Sketcher.Constraint("Perpendicular", 9, 10),
    Sketcher.Constraint("Parallel", 5, 11),
    Sketcher.Constraint("Equal", 3, 5),
    Sketcher.Constraint("Equal", 4, 8),
    Sketcher.Constraint("Equal", 7, 9),
    Sketcher.Constraint("Distance", 2, Q("70.000001 mm")),
    Sketcher.Constraint("Distance", 4, Q("20 mm")),
    Sketcher.Constraint("Distance", 6, Q("185.000001 mm")),
    Sketcher.Constraint("Distance", 7, Q("50 mm")),
    Sketcher.Constraint("DistanceX", 0, 2, -1, 1, Q("150 mm")),
    Sketcher.Constraint("DistanceY", 0, 2, -1, 1, Q("290 mm")),
    Sketcher.Constraint("DistanceY", 2, 2, 3, 2, Q("50 mm")),
    Sketcher.Constraint("DistanceY", 1, 2, -1, 1, Q("710.557998 mm")),
    Sketcher.Constraint("Distance", 1, Q("445.411901 mm")),
    Sketcher.Constraint("DistanceY", 9, 2, -1, 1, Q("507.916502 mm")),
    Sketcher.Constraint("DistanceY", 8, 2, 11, 2, Q("445.204802 mm")),
])
pad14 = doc.addObject("PartDesign::Pad", "Pad013")
body.addObject(pad14)
pad14.Profile = sketch14
pad14.Length = 20

# Sketch on XZ plane
sketch15 = doc.addObject("Sketcher::SketchObject", "Sketch014")
body.addObject(sketch15)
sketch15.AttachmentSupport = (doc.XZ_Plane, [""])
sketch15.MapMode = "FlatFace"
sketch15.addGeometry([
    Part.LineSegment(Vector(47.57757, -662.473575, 0), Vector(-3.293722, -710.557998, 0)),  # 0
    Part.LineSegment(Vector(-3.293722, -710.557998, 0), Vector(389.074081, -873.875197, 0)),  # 1
    Part.LineSegment(Vector(389.074081, -873.875197, 0), Vector(667.978145, -610.250259, 0)),  # 2
    Part.LineSegment(Vector(667.978145, -610.250259, 0), Vector(275.610342, -446.933061, 0)),  # 3
    Part.LineSegment(Vector(275.610342, -446.933061, 0), Vector(211.092434, -507.916502, 0)),  # 4
    Part.LineSegment(Vector(211.092434, -507.916502, 0), Vector(245.438451, -544.253138, 0)),  # 5
    Part.LineSegment(Vector(245.438451, -544.253138, 0), Vector(230.903796, -557.991545, 0)),  # 6
    Part.LineSegment(Vector(230.903796, -557.991545, 0), Vector(196.55778, -521.654908, 0)),  # 7
    Part.LineSegment(Vector(196.55778, -521.654908, 0), Vector(62.112224, -648.735169, 0)),  # 8
    Part.LineSegment(Vector(62.112224, -648.735169, 0), Vector(111.051329, -668.96343, 0)),  # 9
    Part.LineSegment(Vector(111.051329, -668.96343, 0), Vector(96.516674, -682.701836, 0)),  # 10
    Part.LineSegment(Vector(96.516674, -682.701836, 0), Vector(47.57757, -662.473575, 0)),  # 11
], False)
sketch15.addConstraint([
    Sketcher.Constraint("Coincident", 0, 2, 1, 1),
    Sketcher.Constraint("Coincident", 1, 2, 2, 1),
    Sketcher.Constraint("Coincident", 2, 2, 3, 1),
    Sketcher.Constraint("Coincident", 3, 2, 4, 1),
    Sketcher.Constraint("Coincident", 4, 2, 5, 1),
    Sketcher.Constraint("Coincident", 5, 2, 6, 1),
    Sketcher.Constraint("Coincident", 6, 2, 7, 1),
    Sketcher.Constraint("Coincident", 7, 2, 8, 1),
    Sketcher.Constraint("Coincident", 8, 2, 9, 1),
    Sketcher.Constraint("Coincident", 9, 2, 10, 1),
    Sketcher.Constraint("Coincident", 10, 2, 11, 1),
    Sketcher.Constraint("Coincident", 11, 2, 0, 1),
    Sketcher.Constraint("Parallel", 0, 2),
    Sketcher.Constraint("Parallel", 1, 3),
    Sketcher.Constraint("Parallel", 2, 4),
    Sketcher.Constraint("Perpendicular", 4, 5),
    Sketcher.Constraint("Perpendicular", 5, 6),
    Sketcher.Constraint("Perpendicular", 6, 7),
    Sketcher.Constraint("Perpendicular", 7, 8),
    Sketcher.Constraint("Parallel", 8, 10),
    Sketcher.Constraint("Parallel", 9, 11),
    Sketcher.Constraint("Equal", 1, 3),
    Sketcher.Constraint("Equal", 5, 7),
    Sketcher.Constraint("Equal", 6, 10),
    Sketcher.Constraint("Distance", 0, Q("70.000001 mm")),
    Sketcher.Constraint("Distance", 1, Q("425 mm")),
    Sketcher.Constraint("Distance", 5, Q("50 mm")),
    Sketcher.Constraint("Distance", 6, Q("20.000001 mm")),
    Sketcher.Constraint("Distance", 8, Q("185.000001 mm")),
    Sketcher.Constraint("DistanceY", 0, 2, -1, 1, Q("710.557998 mm")),
    Sketcher.Constraint("DistanceY", 4, 2, -1, 1, Q("507.916502 mm")),
    Sketcher.Constraint("DistanceY", 1, 2, 0, 2, Q("163.317199 mm")),
    Sketcher.Constraint("Distance", 2, Q("383.778041 mm")),
    Sketcher.Constraint("Distance", 11, Q("52.954872 mm")),
    Sketcher.Constraint("DistanceX", 0, 2, -1, 1, Q("3.293722 mm")),
    Sketcher.Constraint("DistanceX", -1, 1, 9, 2, Q("111.051329 mm")),
])
pad15 = doc.addObject("PartDesign::Pad", "Pad014")
body.addObject(pad15)
pad15.Profile = sketch15
pad15.Length = 12

doc.recompute()
